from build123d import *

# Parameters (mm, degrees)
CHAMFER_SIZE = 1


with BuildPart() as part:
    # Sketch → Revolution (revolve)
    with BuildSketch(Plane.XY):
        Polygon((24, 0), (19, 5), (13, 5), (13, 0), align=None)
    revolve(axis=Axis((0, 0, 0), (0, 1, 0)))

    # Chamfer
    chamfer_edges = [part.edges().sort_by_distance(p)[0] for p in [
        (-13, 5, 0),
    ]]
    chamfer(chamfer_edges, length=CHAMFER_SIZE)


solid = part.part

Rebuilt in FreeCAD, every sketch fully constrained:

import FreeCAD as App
import Part
import Sketcher

V = App.Vector
Q = App.Units.Quantity


def edges_at(feature, points):
    """Names of the edges that pass closest to the given points."""
    edges = feature.Shape.Edges
    near = lambda p: min(range(len(edges)), key=lambda i: edges[i].distToShape(Part.Vertex(*p))[0])
    return sorted({f"Edge{near(p) + 1}" for p in points})

doc = App.newDocument("Part")
body = doc.addObject("PartDesign::Body", "Body")

# Sketch on XY plane
sketch1 = body.newObject("Sketcher::SketchObject", "Sketch")
sketch1.AttachmentSupport = (doc.getObject("XY_Plane"), [""])
sketch1.MapMode = "FlatFace"
sketch1.addGeometry([
    Part.LineSegment(V(24, 0, 0), V(19, 5, 0)),
    Part.LineSegment(V(19, 5, 0), V(13, 5, 0)),
    Part.LineSegment(V(13, 5, 0), V(13, 0, 0)),
    Part.LineSegment(V(13, 0, 0), V(24, 0, 0)),
], False)
sketch1.addConstraint([
    Sketcher.Constraint("Coincident", 0, 2, 1, 1),
    Sketcher.Constraint("Coincident", 1, 2, 2, 1),
    Sketcher.Constraint("Coincident", 2, 2, 3, 1),
    Sketcher.Constraint("Coincident", 3, 2, 0, 1),
    Sketcher.Constraint("Horizontal", 1),
    Sketcher.Constraint("Vertical", 2),
    Sketcher.Constraint("Horizontal", 3),
    Sketcher.Constraint("PointOnObject", 2, 2, -1),
    Sketcher.Constraint("DistanceX", 1, 2, 1, 1, Q("6 mm")),
    Sketcher.Constraint("DistanceX", 3, 1, 3, 2, Q("11 mm")),
    Sketcher.Constraint("DistanceY", 2, 2, 2, 1, Q("5 mm")),
    Sketcher.Constraint("DistanceX", -1, 1, 0, 2, Q("19 mm")),
])
revolution = body.newObject("PartDesign::Revolution", "Revolution")
revolution.Profile = sketch1
revolution.ReferenceAxis = (sketch1, ["V_Axis"])
revolution.Angle = 360
doc.recompute()

chamfer = body.newObject("PartDesign::Chamfer", "Chamfer")
chamfer.Base = (revolution, edges_at(revolution, [(-13, 5, 0)]))
chamfer.Size = 1

doc.recompute()
